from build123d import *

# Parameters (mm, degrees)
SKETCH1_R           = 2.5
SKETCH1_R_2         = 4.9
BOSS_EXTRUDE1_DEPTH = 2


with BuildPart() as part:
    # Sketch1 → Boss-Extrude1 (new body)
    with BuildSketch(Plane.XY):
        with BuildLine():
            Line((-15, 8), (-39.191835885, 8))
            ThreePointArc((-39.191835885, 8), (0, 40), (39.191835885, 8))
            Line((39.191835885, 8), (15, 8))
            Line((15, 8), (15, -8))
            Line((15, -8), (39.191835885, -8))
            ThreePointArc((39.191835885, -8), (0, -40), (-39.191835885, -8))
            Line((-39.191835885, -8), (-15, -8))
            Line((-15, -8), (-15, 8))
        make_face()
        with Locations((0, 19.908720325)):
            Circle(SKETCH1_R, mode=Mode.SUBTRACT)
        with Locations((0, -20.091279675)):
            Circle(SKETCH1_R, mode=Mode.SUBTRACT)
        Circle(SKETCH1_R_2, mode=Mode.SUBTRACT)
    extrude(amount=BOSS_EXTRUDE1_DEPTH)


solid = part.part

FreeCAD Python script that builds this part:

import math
import FreeCAD as App
import Part
import Sketcher
from FreeCAD import Vector
Q = App.Units.Quantity

doc = App.newDocument("Part")
body = doc.addObject("PartDesign::Body", "Body")

# Sketch on XY plane
sketch1 = doc.addObject("Sketcher::SketchObject", "Sketch")
body.addObject(sketch1)
sketch1.AttachmentSupport = (doc.XY_Plane, [""])
sketch1.MapMode = "FlatFace"
sketch1.addGeometry(Part.LineSegment(Vector(-39.2, 8, 0), Vector(-15, 8, 0)), False)
sketch1.addGeometry(Part.LineSegment(Vector(-15, 8, 0), Vector(-15, -8, 0)), False)
sketch1.addGeometry(Part.LineSegment(Vector(-15, -8, 0), Vector(-39.2, -8, 0)), False)
sketch1.addGeometry(Part.ArcOfCircle(Part.Circle(Vector(0, 0, 0), Vector(0, 0, 1), 40), math.radians(-168), math.radians(-12)), False)
sketch1.addGeometry(Part.LineSegment(Vector(39.2, -8, 0), Vector(15, -8, 0)), False)
sketch1.addGeometry(Part.LineSegment(Vector(15, -8, 0), Vector(15, 8, 0)), False)
sketch1.addGeometry(Part.LineSegment(Vector(15, 8, 0), Vector(39.2, 8, 0)), False)
sketch1.addGeometry(Part.ArcOfCircle(Part.Circle(Vector(0, 0, 0), Vector(0, 0, 1), 40), math.radians(12), math.radians(168)), False)
sketch1.addGeometry(Part.Circle(Vector(0, -20.1, 0), Vector(0, 0, 1), 2.5), False)
sketch1.addGeometry(Part.Circle(Vector(0, 0, 0), Vector(0, 0, 1), 4.9), False)
sketch1.addGeometry(Part.Circle(Vector(0, 19.9, 0), Vector(0, 0, 1), 2.5), False)
sketch1.addConstraint(Sketcher.Constraint("Coincident", 0, 2, 1, 1))
sketch1.addConstraint(Sketcher.Constraint("Coincident", 1, 2, 2, 1))
sketch1.addConstraint(Sketcher.Constraint("Coincident", 2, 2, 3, 1))
sketch1.addConstraint(Sketcher.Constraint("Coincident", 3, 2, 4, 1))
sketch1.addConstraint(Sketcher.Constraint("Coincident", 4, 2, 5, 1))
sketch1.addConstraint(Sketcher.Constraint("Coincident", 5, 2, 6, 1))
sketch1.addConstraint(Sketcher.Constraint("Coincident", 6, 2, 7, 1))
sketch1.addConstraint(Sketcher.Constraint("Coincident", 7, 2, 0, 1))
sketch1.addConstraint(Sketcher.Constraint("Horizontal", 0))
sketch1.addConstraint(Sketcher.Constraint("Vertical", 1))
sketch1.addConstraint(Sketcher.Constraint("Horizontal", 2))
sketch1.addConstraint(Sketcher.Constraint("Horizontal", 4))
sketch1.addConstraint(Sketcher.Constraint("Vertical", 5))
sketch1.addConstraint(Sketcher.Constraint("Horizontal", 6))
sketch1.addConstraint(Sketcher.Constraint("Coincident", 3, 3, -1, 1))
sketch1.addConstraint(Sketcher.Constraint("Coincident", 7, 3, -1, 1))
sketch1.addConstraint(Sketcher.Constraint("Coincident", 9, 3, -1, 1))
sketch1.addConstraint(Sketcher.Constraint("Equal", 3, 7))
sketch1.addConstraint(Sketcher.Constraint("Equal", 8, 10))
sketch1.addConstraint(Sketcher.Constraint("Symmetric", 0, 2, 4, 2, -1, 1))
sketch1.addConstraint(Sketcher.Constraint("PointOnObject", 8, 3, -2))
sketch1.addConstraint(Sketcher.Constraint("PointOnObject", 10, 3, -2))
sketch1.addConstraint(Sketcher.Constraint("Horizontal", 2, 2, 3, 2))
sketch1.addConstraint(Sketcher.Constraint("Horizontal", 0, 2, 5, 2))
sketch1.addConstraint(Sketcher.Constraint("Diameter", 8, Q("5 mm")))
sketch1.addConstraint(Sketcher.Constraint("Radius", 3, Q("40 mm")))
sketch1.addConstraint(Sketcher.Constraint("Diameter", 9, Q("9.8 mm")))
sketch1.addConstraint(Sketcher.Constraint("DistanceY", 1, 2, 1, 1, Q("16 mm")))
sketch1.addConstraint(Sketcher.Constraint("DistanceX", 0, 2, -1, 1, Q("15 mm")))
sketch1.addConstraint(Sketcher.Constraint("DistanceY", 8, 3, 10, 3, Q("40 mm")))
sketch1.addConstraint(Sketcher.Constraint("DistanceY", 8, 3, -1, 1, Q("20.09128 mm")))
pad1 = doc.addObject("PartDesign::Pad", "Pad")
body.addObject(pad1)
pad1.Profile = sketch1
pad1.Length = 2

doc.recompute()
